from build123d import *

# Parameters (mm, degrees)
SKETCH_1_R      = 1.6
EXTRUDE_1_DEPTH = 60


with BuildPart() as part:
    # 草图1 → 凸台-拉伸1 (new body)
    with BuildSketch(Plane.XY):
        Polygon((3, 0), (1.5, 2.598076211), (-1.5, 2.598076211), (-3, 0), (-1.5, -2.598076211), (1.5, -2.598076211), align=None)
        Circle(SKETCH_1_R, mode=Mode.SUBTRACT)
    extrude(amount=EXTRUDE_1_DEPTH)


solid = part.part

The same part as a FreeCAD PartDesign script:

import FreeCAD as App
import Part
import Sketcher
Q = App.Units.Quantity


def add_polygon(sketch, points):
    """Adds a closed chain of lines whose ends are joined by coincident constraints."""
    first, n = sketch.GeometryCount, len(points)
    for a, b in zip(points, points[1:] + points[:1]):
        sketch.addGeometry(Part.LineSegment(App.Vector(*a, 0), App.Vector(*b, 0)), False)
    for i in range(n):
        sketch.addConstraint(Sketcher.Constraint("Coincident", first + i, 2, first + (i + 1) % n, 1))

doc = App.newDocument("Part")
params = doc.addObject("Spreadsheet::Sheet", "Params")
for row, (alias, value) in enumerate([
    ("sketch1_diameter", "3.2 mm"),
    ("sketch1_width", "3 mm"),
    ("sketch1_length", "3 mm"),
    ("pad1_length", "60 mm"),
], start=1):
    params.set(f"A{row}", alias)
    params.set(f"B{row}", "=" + value)
    params.setAlias(f"B{row}", alias)

body = doc.addObject("PartDesign::Body", "Body")

# Sketch on XY plane
sketch1 = body.newObject("Sketcher::SketchObject", "Sketch")
sketch1.AttachmentSupport = (doc.getObject("XY_Plane"), [""])
sketch1.MapMode = "FlatFace"
add_polygon(sketch1, [(3, 0), (1.5, 2.6), (-1.5, 2.6), (-3, 0), (-1.5, -2.6), (1.5, -2.6)])  # lines 0-5
sketch1.addGeometry(Part.Circle(App.Vector(0, 0, 0), App.Vector(0, 0, 1), 1.6), False)  # 6
sketch1.addConstraint(Sketcher.Constraint("Horizontal", 1))
sketch1.addConstraint(Sketcher.Constraint("Horizontal", 4))
sketch1.addConstraint(Sketcher.Constraint("Coincident", 6, 3, -1, 1))
sketch1.addConstraint(Sketcher.Constraint("Symmetric", 0, 2, 3, 2, -1, 1))
sketch1.addConstraint(Sketcher.Constraint("Symmetric", 2, 2, 5, 2, -1, 1))
sketch1.addConstraint(Sketcher.Constraint("PointOnObject", 2, 2, -1))
sketch1.addConstraint(Sketcher.Constraint("Parallel", 2, 5))
sketch1.addConstraint(Sketcher.Constraint("Vertical", 1, 2, 3, 2))
sketch1.addConstraint(Sketcher.Constraint("Diameter", 6, Q("3.2 mm")))
sketch1.addConstraint(Sketcher.Constraint("DistanceX", 1, 2, 1, 1, Q("3 mm")))
sketch1.addConstraint(Sketcher.Constraint("Angle", 0, Q("120 deg")))
sketch1.addConstraint(Sketcher.Constraint("Distance", 0, Q("3 mm")))
sketch1.setExpression("Constraints[14]", "Params.sketch1_diameter")
sketch1.setExpression("Constraints[15]", "Params.sketch1_width")
sketch1.setExpression("Constraints[17]", "Params.sketch1_length")
pad1 = body.newObject("PartDesign::Pad", "Pad")
pad1.Profile = sketch1
pad1.setExpression("Length", "Params.pad1_length")

doc.recompute()
